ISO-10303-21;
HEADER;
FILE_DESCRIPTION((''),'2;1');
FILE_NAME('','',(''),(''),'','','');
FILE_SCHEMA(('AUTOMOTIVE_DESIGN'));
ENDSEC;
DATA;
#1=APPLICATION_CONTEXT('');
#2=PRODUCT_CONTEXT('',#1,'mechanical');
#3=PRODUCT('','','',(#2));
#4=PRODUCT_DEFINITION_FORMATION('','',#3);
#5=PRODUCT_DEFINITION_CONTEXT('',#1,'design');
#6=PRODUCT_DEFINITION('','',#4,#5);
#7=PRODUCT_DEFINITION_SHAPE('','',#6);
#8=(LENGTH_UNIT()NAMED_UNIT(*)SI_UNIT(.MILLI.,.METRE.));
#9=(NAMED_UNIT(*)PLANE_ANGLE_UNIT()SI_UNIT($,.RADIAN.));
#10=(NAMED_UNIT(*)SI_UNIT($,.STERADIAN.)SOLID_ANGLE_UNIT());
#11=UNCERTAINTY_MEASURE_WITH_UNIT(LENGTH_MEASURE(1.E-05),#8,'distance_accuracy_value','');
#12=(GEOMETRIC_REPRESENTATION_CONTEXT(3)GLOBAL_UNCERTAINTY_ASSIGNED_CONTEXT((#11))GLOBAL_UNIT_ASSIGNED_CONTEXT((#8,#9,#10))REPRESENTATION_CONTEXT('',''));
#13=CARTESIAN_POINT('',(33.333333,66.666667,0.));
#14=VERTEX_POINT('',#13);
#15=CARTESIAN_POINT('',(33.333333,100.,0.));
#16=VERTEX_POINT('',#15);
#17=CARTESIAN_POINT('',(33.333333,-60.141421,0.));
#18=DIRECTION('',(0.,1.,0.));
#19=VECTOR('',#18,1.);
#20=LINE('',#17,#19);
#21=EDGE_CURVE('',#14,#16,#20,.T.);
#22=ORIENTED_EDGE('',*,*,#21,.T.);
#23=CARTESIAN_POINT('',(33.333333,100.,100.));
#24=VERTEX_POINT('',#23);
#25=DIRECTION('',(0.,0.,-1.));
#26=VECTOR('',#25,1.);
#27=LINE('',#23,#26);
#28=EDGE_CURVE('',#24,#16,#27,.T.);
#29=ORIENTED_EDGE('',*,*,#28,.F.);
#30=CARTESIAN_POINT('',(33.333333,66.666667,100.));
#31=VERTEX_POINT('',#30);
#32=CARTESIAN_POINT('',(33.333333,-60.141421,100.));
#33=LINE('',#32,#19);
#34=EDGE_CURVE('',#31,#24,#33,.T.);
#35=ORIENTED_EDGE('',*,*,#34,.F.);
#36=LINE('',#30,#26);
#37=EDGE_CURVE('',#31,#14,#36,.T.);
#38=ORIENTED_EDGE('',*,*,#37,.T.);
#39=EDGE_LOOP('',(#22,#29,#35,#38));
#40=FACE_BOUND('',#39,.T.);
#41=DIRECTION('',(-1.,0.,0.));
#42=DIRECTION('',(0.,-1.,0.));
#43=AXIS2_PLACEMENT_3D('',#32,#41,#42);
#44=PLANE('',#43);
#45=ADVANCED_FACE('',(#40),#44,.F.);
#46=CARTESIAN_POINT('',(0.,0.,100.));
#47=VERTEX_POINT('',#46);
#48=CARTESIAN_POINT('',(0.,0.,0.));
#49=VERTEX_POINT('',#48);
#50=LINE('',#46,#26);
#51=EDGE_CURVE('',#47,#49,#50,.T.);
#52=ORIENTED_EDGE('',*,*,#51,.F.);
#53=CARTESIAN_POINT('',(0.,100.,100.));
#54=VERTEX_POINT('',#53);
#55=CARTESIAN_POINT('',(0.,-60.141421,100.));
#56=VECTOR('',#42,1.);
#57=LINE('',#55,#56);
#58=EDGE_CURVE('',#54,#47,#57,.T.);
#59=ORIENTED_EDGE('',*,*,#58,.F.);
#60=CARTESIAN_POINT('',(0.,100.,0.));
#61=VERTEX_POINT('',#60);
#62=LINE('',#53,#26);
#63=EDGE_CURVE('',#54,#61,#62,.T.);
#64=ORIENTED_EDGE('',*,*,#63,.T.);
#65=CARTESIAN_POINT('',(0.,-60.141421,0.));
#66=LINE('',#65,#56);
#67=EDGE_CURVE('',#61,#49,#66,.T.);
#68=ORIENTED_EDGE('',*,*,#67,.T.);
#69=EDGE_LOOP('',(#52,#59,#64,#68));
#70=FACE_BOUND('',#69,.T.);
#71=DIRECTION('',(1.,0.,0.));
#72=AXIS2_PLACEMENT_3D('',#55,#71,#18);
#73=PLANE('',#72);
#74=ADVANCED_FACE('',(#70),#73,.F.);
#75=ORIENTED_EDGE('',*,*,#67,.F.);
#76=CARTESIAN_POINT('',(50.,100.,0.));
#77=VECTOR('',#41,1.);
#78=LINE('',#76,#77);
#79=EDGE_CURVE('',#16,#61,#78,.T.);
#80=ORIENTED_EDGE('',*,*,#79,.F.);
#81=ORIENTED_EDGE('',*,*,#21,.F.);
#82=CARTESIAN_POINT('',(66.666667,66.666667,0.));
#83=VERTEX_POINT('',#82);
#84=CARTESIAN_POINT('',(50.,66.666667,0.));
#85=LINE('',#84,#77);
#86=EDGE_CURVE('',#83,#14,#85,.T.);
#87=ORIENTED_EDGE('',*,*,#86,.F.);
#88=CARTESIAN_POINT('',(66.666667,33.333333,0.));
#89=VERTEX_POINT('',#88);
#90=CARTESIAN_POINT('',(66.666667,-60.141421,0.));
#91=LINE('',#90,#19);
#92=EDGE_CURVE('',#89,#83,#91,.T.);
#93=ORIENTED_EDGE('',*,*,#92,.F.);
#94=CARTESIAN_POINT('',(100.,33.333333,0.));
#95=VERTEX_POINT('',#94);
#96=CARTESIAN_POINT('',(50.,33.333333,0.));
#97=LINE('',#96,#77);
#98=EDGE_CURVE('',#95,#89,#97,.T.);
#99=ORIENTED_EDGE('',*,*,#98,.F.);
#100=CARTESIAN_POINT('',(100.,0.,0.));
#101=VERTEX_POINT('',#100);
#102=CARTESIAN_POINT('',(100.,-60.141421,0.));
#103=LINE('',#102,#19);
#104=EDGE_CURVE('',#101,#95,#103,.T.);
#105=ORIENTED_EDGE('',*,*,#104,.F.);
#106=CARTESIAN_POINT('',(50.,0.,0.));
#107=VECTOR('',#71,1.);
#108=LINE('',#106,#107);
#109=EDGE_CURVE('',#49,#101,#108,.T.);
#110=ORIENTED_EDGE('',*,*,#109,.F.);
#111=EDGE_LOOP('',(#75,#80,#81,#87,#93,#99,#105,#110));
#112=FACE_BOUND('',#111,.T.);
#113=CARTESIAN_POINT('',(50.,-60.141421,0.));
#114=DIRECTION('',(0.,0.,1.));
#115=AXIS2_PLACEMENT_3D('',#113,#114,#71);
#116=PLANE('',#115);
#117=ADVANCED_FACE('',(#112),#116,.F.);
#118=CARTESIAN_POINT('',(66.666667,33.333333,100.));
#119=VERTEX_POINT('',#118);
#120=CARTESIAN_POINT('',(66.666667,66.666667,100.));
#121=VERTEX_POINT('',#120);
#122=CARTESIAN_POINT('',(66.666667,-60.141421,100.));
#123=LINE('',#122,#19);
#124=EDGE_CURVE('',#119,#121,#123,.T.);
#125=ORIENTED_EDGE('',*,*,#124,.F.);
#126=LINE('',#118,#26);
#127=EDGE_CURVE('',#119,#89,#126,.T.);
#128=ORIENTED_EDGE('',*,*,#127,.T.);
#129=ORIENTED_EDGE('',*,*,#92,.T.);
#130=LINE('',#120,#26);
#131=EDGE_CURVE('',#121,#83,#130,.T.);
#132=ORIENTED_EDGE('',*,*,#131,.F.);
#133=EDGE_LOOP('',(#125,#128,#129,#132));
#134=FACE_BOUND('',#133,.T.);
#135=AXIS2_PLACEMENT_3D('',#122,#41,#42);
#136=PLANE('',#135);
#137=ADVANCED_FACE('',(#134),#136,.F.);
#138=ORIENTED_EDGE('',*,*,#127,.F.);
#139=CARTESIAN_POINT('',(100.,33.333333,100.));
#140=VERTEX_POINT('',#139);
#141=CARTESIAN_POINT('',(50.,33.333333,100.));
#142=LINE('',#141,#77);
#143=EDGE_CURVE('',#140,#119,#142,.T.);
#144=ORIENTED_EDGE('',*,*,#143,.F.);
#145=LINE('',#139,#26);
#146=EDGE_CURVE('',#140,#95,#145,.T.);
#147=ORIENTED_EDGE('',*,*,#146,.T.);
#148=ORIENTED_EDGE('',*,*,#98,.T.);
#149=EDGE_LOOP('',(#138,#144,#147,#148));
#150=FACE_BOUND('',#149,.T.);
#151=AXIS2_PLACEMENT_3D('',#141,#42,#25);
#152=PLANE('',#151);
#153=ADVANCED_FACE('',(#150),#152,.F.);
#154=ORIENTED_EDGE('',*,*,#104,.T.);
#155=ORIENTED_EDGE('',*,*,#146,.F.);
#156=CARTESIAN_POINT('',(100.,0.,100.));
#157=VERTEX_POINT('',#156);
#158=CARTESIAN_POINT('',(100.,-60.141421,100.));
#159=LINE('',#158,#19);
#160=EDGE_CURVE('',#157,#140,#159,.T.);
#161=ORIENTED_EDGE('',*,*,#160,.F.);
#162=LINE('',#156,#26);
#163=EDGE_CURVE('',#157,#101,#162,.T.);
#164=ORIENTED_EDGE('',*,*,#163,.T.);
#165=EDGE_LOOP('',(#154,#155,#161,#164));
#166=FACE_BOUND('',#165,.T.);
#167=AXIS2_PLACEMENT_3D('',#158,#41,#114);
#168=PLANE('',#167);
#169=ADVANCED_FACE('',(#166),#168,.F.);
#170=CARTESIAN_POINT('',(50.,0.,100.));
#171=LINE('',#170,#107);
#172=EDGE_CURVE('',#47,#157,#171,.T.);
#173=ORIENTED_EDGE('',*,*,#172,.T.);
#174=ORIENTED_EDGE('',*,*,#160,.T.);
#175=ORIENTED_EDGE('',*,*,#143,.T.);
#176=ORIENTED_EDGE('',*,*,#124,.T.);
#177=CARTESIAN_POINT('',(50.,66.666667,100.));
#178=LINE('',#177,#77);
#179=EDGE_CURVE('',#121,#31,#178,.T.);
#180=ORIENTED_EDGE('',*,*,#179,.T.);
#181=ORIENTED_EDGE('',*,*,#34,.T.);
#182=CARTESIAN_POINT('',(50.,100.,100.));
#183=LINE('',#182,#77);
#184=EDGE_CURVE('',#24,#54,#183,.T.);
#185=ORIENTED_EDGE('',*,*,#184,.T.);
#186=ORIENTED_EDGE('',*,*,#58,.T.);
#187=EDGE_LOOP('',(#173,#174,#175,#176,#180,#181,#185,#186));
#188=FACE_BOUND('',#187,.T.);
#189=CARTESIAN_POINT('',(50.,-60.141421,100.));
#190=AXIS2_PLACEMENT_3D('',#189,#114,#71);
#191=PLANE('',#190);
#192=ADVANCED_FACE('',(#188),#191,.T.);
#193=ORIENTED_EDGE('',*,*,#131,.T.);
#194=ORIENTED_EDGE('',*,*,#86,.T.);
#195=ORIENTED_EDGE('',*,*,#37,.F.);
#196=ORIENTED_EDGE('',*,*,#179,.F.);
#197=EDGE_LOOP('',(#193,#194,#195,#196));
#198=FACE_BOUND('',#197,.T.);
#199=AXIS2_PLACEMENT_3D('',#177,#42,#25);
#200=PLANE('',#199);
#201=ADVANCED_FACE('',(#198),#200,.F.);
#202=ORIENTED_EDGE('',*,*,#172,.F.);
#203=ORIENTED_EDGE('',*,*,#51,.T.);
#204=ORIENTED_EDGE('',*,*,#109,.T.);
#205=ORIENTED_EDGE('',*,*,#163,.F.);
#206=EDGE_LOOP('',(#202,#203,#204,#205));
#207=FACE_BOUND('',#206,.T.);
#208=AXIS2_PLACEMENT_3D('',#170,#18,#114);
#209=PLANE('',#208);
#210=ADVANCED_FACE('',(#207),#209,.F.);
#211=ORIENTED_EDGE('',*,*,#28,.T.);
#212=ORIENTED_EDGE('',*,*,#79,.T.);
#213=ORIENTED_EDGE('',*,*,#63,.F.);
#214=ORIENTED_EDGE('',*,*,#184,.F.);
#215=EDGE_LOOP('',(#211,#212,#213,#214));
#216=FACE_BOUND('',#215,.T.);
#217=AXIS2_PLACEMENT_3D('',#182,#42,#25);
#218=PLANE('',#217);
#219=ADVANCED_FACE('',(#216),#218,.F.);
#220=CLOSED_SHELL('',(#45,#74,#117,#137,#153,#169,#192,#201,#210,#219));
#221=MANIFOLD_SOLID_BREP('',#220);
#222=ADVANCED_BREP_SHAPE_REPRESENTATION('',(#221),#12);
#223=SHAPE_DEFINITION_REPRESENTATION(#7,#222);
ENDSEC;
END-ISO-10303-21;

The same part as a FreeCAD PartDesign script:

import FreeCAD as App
import Part
import Sketcher

V = App.Vector
Q = App.Units.Quantity


def add_polygon(sketch, points):
    """Adds a closed chain of lines whose ends are joined by coincident constraints."""
    first, n = sketch.GeometryCount, len(points)
    for a, b in zip(points, points[1:] + points[:1]):
        sketch.addGeometry(Part.LineSegment(App.Vector(*a, 0), App.Vector(*b, 0)), False)
    for i in range(n):
        sketch.addConstraint(Sketcher.Constraint("Coincident", first + i, 2, first + (i + 1) % n, 1))

doc = App.newDocument("Part")
body = doc.addObject("PartDesign::Body", "Body")

# Sketch on XY plane
sketch1 = body.newObject("Sketcher::SketchObject", "Sketch")
sketch1.AttachmentSupport = (doc.getObject("XY_Plane"), [""])
sketch1.MapMode = "FlatFace"
add_polygon(sketch1, [(33, 100), (0, 100), (0, 0), (100, 0), (100, 33), (67, 33), (67, 67), (33, 67)])  # lines 0-7
sketch1.addConstraint([
    Sketcher.Constraint("Horizontal", 0),
    Sketcher.Constraint("Vertical", 1),
    Sketcher.Constraint("Horizontal", 2),
    Sketcher.Constraint("Vertical", 3),
    Sketcher.Constraint("Horizontal", 4),
    Sketcher.Constraint("Vertical", 5),
    Sketcher.Constraint("Horizontal", 6),
    Sketcher.Constraint("Vertical", 7),
    Sketcher.Constraint("Coincident", 1, 2, -1, 1),
    Sketcher.Constraint("Equal", 0, 4),
    Sketcher.Constraint("Equal", 4, 6),
    Sketcher.Constraint("Equal", 2, 1),
    Sketcher.Constraint("Equal", 6, 3),
    Sketcher.Constraint("Equal", 3, 5),
    Sketcher.Constraint("DistanceX", 2, 1, 2, 2, Q("100 mm")),
])
pad1 = body.newObject("PartDesign::Pad", "Pad")
pad1.Profile = sketch1
pad1.Length = 100

doc.recompute()
